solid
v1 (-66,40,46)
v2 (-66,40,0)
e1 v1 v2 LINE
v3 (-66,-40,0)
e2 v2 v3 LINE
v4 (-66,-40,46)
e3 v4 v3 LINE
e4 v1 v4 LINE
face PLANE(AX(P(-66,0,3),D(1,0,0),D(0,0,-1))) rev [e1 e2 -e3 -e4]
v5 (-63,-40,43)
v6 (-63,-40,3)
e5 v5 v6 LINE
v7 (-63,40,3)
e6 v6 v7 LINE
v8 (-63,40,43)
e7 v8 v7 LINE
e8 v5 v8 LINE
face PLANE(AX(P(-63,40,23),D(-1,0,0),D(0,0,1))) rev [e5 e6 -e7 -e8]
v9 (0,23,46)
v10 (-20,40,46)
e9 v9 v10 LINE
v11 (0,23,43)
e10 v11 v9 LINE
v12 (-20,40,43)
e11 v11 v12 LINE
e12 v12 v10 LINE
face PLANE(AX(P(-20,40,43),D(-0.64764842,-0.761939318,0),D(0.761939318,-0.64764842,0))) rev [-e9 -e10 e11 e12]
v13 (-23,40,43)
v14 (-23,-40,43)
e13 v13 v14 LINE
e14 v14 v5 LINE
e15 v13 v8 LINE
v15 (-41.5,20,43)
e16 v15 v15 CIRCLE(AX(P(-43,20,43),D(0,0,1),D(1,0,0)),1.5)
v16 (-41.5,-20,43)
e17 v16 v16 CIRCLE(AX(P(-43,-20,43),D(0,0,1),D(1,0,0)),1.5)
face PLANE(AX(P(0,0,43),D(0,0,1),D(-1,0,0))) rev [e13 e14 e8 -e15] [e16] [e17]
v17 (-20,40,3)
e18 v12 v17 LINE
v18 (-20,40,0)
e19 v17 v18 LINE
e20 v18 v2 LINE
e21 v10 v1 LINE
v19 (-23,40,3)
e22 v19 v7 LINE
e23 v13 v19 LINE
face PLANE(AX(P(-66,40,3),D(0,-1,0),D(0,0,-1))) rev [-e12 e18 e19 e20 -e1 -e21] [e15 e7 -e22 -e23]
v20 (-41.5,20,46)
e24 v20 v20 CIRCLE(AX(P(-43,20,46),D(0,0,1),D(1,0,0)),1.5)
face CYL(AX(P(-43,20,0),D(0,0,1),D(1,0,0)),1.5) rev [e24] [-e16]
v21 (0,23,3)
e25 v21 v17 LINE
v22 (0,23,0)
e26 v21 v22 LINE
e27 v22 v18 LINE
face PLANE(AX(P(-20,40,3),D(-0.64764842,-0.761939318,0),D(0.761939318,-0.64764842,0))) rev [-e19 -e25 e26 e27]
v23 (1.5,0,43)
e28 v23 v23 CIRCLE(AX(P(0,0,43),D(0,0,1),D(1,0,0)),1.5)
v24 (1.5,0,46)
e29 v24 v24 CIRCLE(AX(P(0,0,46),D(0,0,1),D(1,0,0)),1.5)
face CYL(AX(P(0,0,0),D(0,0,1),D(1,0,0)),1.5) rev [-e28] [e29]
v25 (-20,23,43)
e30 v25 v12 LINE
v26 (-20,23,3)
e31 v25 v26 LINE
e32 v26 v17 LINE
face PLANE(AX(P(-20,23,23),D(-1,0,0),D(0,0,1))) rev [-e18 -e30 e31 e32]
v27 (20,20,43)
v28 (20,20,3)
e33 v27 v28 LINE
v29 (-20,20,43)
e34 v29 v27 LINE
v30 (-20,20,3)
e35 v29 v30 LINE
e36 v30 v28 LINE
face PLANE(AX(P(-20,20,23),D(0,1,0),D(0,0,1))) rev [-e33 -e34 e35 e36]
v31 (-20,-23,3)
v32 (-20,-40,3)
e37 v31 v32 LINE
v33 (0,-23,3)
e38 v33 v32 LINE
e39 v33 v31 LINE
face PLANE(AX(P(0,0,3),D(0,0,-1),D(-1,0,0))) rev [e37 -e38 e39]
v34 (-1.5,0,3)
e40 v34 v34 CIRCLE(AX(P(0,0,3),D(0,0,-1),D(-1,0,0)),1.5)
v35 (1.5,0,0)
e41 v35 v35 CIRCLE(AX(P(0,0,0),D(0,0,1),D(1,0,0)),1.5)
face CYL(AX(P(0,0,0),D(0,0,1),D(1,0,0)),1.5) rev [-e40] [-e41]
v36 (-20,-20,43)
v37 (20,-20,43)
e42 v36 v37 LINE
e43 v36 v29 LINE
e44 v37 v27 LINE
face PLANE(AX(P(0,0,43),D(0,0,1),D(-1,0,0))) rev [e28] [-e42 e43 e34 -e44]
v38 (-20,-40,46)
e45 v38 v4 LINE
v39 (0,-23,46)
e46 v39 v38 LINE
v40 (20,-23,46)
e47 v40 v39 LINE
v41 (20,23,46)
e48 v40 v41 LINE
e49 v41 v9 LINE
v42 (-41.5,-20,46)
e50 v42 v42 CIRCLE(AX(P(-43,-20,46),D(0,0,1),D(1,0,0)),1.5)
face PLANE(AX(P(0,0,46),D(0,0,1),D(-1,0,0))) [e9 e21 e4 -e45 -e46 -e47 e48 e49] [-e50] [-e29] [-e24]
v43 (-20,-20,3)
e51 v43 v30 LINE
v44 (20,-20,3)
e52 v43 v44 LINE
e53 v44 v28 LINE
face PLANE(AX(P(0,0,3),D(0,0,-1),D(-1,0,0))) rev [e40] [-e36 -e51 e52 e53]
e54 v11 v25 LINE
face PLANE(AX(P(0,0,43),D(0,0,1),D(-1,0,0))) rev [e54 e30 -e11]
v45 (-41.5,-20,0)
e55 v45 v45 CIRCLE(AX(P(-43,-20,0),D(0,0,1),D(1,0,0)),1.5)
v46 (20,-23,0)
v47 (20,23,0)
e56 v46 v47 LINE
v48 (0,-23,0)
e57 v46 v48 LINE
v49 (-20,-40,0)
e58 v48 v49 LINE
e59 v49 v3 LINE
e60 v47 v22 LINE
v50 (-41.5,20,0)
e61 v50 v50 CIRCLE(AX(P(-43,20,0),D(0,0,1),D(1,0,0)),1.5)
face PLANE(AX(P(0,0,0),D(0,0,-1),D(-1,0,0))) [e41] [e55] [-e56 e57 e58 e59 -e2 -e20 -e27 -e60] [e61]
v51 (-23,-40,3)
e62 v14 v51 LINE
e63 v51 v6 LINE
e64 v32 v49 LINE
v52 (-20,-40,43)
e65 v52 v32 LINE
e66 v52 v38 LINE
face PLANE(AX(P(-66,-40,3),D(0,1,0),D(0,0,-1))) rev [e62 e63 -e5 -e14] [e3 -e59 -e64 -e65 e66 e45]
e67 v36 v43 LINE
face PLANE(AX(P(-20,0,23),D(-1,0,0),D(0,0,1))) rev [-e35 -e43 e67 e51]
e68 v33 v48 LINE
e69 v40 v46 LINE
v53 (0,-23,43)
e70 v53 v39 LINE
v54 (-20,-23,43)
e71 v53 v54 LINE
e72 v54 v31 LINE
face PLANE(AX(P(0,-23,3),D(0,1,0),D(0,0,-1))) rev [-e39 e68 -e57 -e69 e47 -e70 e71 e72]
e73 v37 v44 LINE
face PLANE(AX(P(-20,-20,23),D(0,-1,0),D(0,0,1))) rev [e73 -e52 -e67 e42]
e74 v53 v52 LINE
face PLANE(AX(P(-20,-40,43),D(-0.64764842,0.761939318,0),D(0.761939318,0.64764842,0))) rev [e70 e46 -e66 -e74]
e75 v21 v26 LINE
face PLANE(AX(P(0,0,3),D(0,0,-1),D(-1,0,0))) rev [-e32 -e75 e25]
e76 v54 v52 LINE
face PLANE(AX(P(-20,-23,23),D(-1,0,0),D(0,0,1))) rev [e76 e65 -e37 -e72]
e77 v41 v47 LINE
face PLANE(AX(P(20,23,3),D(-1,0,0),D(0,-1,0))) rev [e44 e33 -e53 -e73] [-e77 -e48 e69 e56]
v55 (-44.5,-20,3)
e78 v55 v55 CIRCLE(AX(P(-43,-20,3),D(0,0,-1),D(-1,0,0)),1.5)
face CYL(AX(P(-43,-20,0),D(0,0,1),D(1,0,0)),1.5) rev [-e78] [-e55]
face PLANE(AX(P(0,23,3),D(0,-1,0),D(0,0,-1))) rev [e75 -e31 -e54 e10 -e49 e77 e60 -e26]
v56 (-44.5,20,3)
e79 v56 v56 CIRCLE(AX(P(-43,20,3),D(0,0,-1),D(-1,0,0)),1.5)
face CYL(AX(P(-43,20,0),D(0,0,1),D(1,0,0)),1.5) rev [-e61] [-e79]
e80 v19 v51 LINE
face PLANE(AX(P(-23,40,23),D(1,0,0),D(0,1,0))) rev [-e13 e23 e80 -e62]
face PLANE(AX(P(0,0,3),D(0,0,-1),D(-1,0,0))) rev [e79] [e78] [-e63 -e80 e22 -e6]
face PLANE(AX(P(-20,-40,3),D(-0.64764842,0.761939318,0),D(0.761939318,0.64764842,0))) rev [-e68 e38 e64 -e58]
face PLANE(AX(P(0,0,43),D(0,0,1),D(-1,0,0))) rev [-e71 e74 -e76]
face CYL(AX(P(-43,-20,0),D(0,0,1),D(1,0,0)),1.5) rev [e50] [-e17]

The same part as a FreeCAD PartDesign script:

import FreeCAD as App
import Part
import Sketcher

doc = App.newDocument("Part")
params = doc.addObject("Spreadsheet::Sheet", "Params")
for row, (alias, value) in enumerate([
    ("sketch1_width", "46 mm"),
    ("sketch1_width2", "86 mm"),
    ("sketch1_width3", "20 mm"),
    ("sketch1_height", "40 mm"),
    ("sketch1_height2", "23 mm"),
    ("pad1_length", "3 mm"),
    ("sketch2_width", "40 mm"),
    ("sketch2_width2", "3 mm"),
    ("sketch2_height", "17 mm"),
    ("pad2_length", "20 mm"),
    ("sketch3_diameter", "3 mm"),
], start=1):
    params.set(f"A{row}", alias)
    params.set(f"B{row}", "=" + value)
    params.setAlias(f"B{row}", alias)

body = doc.addObject("PartDesign::Body", "Body")

# Sketch on XY plane
sketch1 = body.newObject("Sketcher::SketchObject", "Sketch")
sketch1.AttachmentSupport = (doc.getObject("XY_Plane"), [""])
sketch1.MapMode = "FlatFace"
sketch1.addGeometry(Part.LineSegment(App.Vector(-20, 40, 0), App.Vector(-66, 40, 0)), False)
sketch1.addGeometry(Part.LineSegment(App.Vector(-66, 40, 0), App.Vector(-66, 0, 0)), False)
sketch1.addGeometry(Part.LineSegment(App.Vector(-66, 0, 0), App.Vector(20, 0, 0)), False)
sketch1.addGeometry(Part.LineSegment(App.Vector(20, 0, 0), App.Vector(20, 23, 0)), False)
sketch1.addGeometry(Part.LineSegment(App.Vector(20, 23, 0), App.Vector(0, 23, 0)), False)
sketch1.addGeometry(Part.LineSegment(App.Vector(0, 23, 0), App.Vector(-20, 40, 0)), False)
sketch1.addConstraint(Sketcher.Constraint("Coincident", 0, 2, 1, 1))
sketch1.addConstraint(Sketcher.Constraint("Coincident", 1, 2, 2, 1))
sketch1.addConstraint(Sketcher.Constraint("Coincident", 2, 2, 3, 1))
sketch1.addConstraint(Sketcher.Constraint("Coincident", 3, 2, 4, 1))
sketch1.addConstraint(Sketcher.Constraint("Coincident", 4, 2, 5, 1))
sketch1.addConstraint(Sketcher.Constraint("Coincident", 5, 2, 0, 1))
sketch1.addConstraint(Sketcher.Constraint("Horizontal", 0))
sketch1.addConstraint(Sketcher.Constraint("Vertical", 1))
sketch1.addConstraint(Sketcher.Constraint("Horizontal", 2))
sketch1.addConstraint(Sketcher.Constraint("Vertical", 3))
sketch1.addConstraint(Sketcher.Constraint("Horizontal", 4))
sketch1.addConstraint(Sketcher.Constraint("PointOnObject", 1, 2, -1))
sketch1.addConstraint(Sketcher.Constraint("PointOnObject", 4, 2, -2))
sketch1.addConstraint(Sketcher.Constraint("DistanceX", 0, 2, 0, 1, 46.0))
sketch1.addConstraint(Sketcher.Constraint("DistanceX", 2, 1, 2, 2, 86.0))
sketch1.addConstraint(Sketcher.Constraint("DistanceX", 4, 2, 4, 1, 20.0))
sketch1.addConstraint(Sketcher.Constraint("DistanceY", 1, 2, 1, 1, 40.0))
sketch1.addConstraint(Sketcher.Constraint("DistanceY", 3, 1, 3, 2, 23.0))
sketch1.setExpression("Constraints[13]", "Params.sketch1_width")
sketch1.setExpression("Constraints[14]", "Params.sketch1_width2")
sketch1.setExpression("Constraints[15]", "Params.sketch1_width3")
sketch1.setExpression("Constraints[16]", "Params.sketch1_height")
sketch1.setExpression("Constraints[17]", "Params.sketch1_height2")
pad1 = body.newObject("PartDesign::Pad", "Pad")
pad1.Profile = sketch1
pad1.setExpression("Length", "Params.pad1_length")

# Sketch on XY plane
sketch2 = body.newObject("Sketcher::SketchObject", "Sketch001")
sketch2.AttachmentSupport = (doc.getObject("XY_Plane"), [""])
sketch2.MapMode = "FlatFace"
sketch2.AttachmentOffset = App.Placement(App.Vector(0, 0, 3), App.Rotation())
sketch2.addGeometry(Part.LineSegment(App.Vector(20, 23, 0), App.Vector(-20, 23, 0)), False)
sketch2.addGeometry(Part.LineSegment(App.Vector(-20, 23, 0), App.Vector(-20, 40, 0)), False)
sketch2.addGeometry(Part.LineSegment(App.Vector(-20, 40, 0), App.Vector(-23, 40, 0)), False)
sketch2.addGeometry(Part.LineSegment(App.Vector(-23, 40, 0), App.Vector(-23, 0, 0)), False)
sketch2.addGeometry(Part.LineSegment(App.Vector(-23, 0, 0), App.Vector(-20, 0, 0)), False)
sketch2.addGeometry(Part.LineSegment(App.Vector(-20, 0, 0), App.Vector(-20, 20, 0)), False)
sketch2.addGeometry(Part.LineSegment(App.Vector(-20, 20, 0), App.Vector(20, 20, 0)), False)
sketch2.addGeometry(Part.LineSegment(App.Vector(20, 20, 0), App.Vector(20, 23, 0)), False)
sketch2.addGeometry(Part.LineSegment(App.Vector(-66, 40, 0), App.Vector(-66, 0, 0)), False)
sketch2.addGeometry(Part.LineSegment(App.Vector(-66, 0, 0), App.Vector(-63, 0, 0)), False)
sketch2.addGeometry(Part.LineSegment(App.Vector(-63, 0, 0), App.Vector(-63, 40, 0)), False)
sketch2.addGeometry(Part.LineSegment(App.Vector(-63, 40, 0), App.Vector(-66, 40, 0)), False)
sketch2.addConstraint(Sketcher.Constraint("Coincident", 0, 2, 1, 1))
sketch2.addConstraint(Sketcher.Constraint("Coincident", 1, 2, 2, 1))
sketch2.addConstraint(Sketcher.Constraint("Coincident", 2, 2, 3, 1))
sketch2.addConstraint(Sketcher.Constraint("Coincident", 3, 2, 4, 1))
sketch2.addConstraint(Sketcher.Constraint("Coincident", 4, 2, 5, 1))
sketch2.addConstraint(Sketcher.Constraint("Coincident", 5, 2, 6, 1))
sketch2.addConstraint(Sketcher.Constraint("Coincident", 6, 2, 7, 1))
sketch2.addConstraint(Sketcher.Constraint("Coincident", 7, 2, 0, 1))
sketch2.addConstraint(Sketcher.Constraint("Coincident", 8, 2, 9, 1))
sketch2.addConstraint(Sketcher.Constraint("Coincident", 9, 2, 10, 1))
sketch2.addConstraint(Sketcher.Constraint("Coincident", 10, 2, 11, 1))
sketch2.addConstraint(Sketcher.Constraint("Coincident", 11, 2, 8, 1))
sketch2.addConstraint(Sketcher.Constraint("Horizontal", 0))
sketch2.addConstraint(Sketcher.Constraint("Vertical", 1))
sketch2.addConstraint(Sketcher.Constraint("Horizontal", 2))
sketch2.addConstraint(Sketcher.Constraint("Vertical", 3))
sketch2.addConstraint(Sketcher.Constraint("Horizontal", 4))
sketch2.addConstraint(Sketcher.Constraint("Vertical", 5))
sketch2.addConstraint(Sketcher.Constraint("Horizontal", 6))
sketch2.addConstraint(Sketcher.Constraint("Vertical", 7))
sketch2.addConstraint(Sketcher.Constraint("Vertical", 8))
sketch2.addConstraint(Sketcher.Constraint("Horizontal", 9))
sketch2.addConstraint(Sketcher.Constraint("Vertical", 10))
sketch2.addConstraint(Sketcher.Constraint("Horizontal", 11))
sketch2.addConstraint(Sketcher.Constraint("PointOnObject", 3, 2, -1))
sketch2.addConstraint(Sketcher.Constraint("PointOnObject", 8, 2, -1))
sketch2.addConstraint(Sketcher.Constraint("Horizontal", 2, 2, 10, 2))
sketch2.addConstraint(Sketcher.Constraint("Vertical", 1, 2, 4, 2))
sketch2.addConstraint(Sketcher.Constraint("Equal", 4, 9))
sketch2.addConstraint(Sketcher.Constraint("Equal", 6, 3))
sketch2.addConstraint(Sketcher.Constraint("Equal", 11, 7))
sketch2.addConstraint(Sketcher.Constraint("DistanceX", 0, 2, 0, 1, 40.0))
sketch2.addConstraint(Sketcher.Constraint("DistanceX", 2, 2, 2, 1, 3.0))
sketch2.addConstraint(Sketcher.Constraint("DistanceY", 1, 1, 1, 2, 17.0))
sketch2.addConstraint(Sketcher.Constraint("DistanceX", 0, 2, -1, 1, 20.0))
sketch2.addConstraint(Sketcher.Constraint("DistanceX", 8, 2, -1, 1, 66.0))
sketch2.setExpression("Constraints[31]", "Params.sketch2_width")
sketch2.setExpression("Constraints[32]", "Params.sketch2_width2")
sketch2.setExpression("Constraints[33]", "Params.sketch2_height")
pad2 = body.newObject("PartDesign::Pad", "Pad001")
pad2.Profile = sketch2
pad2.setExpression("Length", "Params.pad2_length")
body2 = doc.addObject("PartDesign::Body", "Body001")
doc.recompute()

body2.BaseFeature = body
doc.recompute()

mirroring = doc.addObject("Part::Mirroring", "Mirroring")
mirroring.Source = body
mirroring.Base = App.Vector(20, 0, 3)
mirroring.Normal = App.Vector(0, 1, 0)
body3 = doc.addObject("PartDesign::Body", "Body002")
body3.BaseFeature = mirroring
boolean = body2.newObject("PartDesign::Boolean", "Boolean")
boolean.Type = "Fuse"
boolean.addObjects([body3])
doc.recompute()
body4 = doc.addObject("PartDesign::Body", "Body003")
doc.recompute()

body4.BaseFeature = body2
doc.recompute()

mirroring2 = doc.addObject("Part::Mirroring", "Mirroring001")
mirroring2.Source = body2
mirroring2.Base = App.Vector(0, 0, 23)
mirroring2.Normal = App.Vector(0, 0, 1)
body5 = doc.addObject("PartDesign::Body", "Body004")
body5.BaseFeature = mirroring2
boolean2 = body4.newObject("PartDesign::Boolean", "Boolean001")
boolean2.Type = "Fuse"
boolean2.addObjects([body5])
doc.recompute()

# Sketch on XY plane
sketch3 = body4.newObject("Sketcher::SketchObject", "Sketch002")
sketch3.AttachmentSupport = (doc.getObject("XY_Plane003"), [""])
sketch3.MapMode = "FlatFace"
sketch3.AttachmentOffset = App.Placement(App.Vector(0, 0, 46), App.Rotation())
sketch3.addGeometry(Part.Circle(App.Vector(-43, 20, 0), App.Vector(0, 0, 1), 1.5), False)
sketch3.addGeometry(Part.Circle(App.Vector(-43, -20, 0), App.Vector(0, 0, 1), 1.5), False)
sketch3.addGeometry(Part.Circle(App.Vector(0, 0, 0), App.Vector(0, 0, 1), 1.5), False)
sketch3.addConstraint(Sketcher.Constraint("Coincident", 2, 3, -1, 1))
sketch3.addConstraint(Sketcher.Constraint("Equal", 0, 1))
sketch3.addConstraint(Sketcher.Constraint("Equal", 1, 2))
sketch3.addConstraint(Sketcher.Constraint("Symmetric", 0, 3, 1, 3, -1))
sketch3.addConstraint(Sketcher.Constraint("Diameter", 0, 3.0))
sketch3.addConstraint(Sketcher.Constraint("DistanceX", 0, 3, -1, 1, 43.0))
sketch3.addConstraint(Sketcher.Constraint("DistanceY", -1, 1, 0, 3, 20.0))
sketch3.setExpression("Constraints[4]", "Params.sketch3_diameter")
pocket1 = body4.newObject("PartDesign::Pocket", "Pocket")
pocket1.Profile = sketch3
pocket1.Type = "ThroughAll"
pocket1.Midplane = True
mirroring.Visibility = False
mirroring2.Visibility = False

doc.recompute()
